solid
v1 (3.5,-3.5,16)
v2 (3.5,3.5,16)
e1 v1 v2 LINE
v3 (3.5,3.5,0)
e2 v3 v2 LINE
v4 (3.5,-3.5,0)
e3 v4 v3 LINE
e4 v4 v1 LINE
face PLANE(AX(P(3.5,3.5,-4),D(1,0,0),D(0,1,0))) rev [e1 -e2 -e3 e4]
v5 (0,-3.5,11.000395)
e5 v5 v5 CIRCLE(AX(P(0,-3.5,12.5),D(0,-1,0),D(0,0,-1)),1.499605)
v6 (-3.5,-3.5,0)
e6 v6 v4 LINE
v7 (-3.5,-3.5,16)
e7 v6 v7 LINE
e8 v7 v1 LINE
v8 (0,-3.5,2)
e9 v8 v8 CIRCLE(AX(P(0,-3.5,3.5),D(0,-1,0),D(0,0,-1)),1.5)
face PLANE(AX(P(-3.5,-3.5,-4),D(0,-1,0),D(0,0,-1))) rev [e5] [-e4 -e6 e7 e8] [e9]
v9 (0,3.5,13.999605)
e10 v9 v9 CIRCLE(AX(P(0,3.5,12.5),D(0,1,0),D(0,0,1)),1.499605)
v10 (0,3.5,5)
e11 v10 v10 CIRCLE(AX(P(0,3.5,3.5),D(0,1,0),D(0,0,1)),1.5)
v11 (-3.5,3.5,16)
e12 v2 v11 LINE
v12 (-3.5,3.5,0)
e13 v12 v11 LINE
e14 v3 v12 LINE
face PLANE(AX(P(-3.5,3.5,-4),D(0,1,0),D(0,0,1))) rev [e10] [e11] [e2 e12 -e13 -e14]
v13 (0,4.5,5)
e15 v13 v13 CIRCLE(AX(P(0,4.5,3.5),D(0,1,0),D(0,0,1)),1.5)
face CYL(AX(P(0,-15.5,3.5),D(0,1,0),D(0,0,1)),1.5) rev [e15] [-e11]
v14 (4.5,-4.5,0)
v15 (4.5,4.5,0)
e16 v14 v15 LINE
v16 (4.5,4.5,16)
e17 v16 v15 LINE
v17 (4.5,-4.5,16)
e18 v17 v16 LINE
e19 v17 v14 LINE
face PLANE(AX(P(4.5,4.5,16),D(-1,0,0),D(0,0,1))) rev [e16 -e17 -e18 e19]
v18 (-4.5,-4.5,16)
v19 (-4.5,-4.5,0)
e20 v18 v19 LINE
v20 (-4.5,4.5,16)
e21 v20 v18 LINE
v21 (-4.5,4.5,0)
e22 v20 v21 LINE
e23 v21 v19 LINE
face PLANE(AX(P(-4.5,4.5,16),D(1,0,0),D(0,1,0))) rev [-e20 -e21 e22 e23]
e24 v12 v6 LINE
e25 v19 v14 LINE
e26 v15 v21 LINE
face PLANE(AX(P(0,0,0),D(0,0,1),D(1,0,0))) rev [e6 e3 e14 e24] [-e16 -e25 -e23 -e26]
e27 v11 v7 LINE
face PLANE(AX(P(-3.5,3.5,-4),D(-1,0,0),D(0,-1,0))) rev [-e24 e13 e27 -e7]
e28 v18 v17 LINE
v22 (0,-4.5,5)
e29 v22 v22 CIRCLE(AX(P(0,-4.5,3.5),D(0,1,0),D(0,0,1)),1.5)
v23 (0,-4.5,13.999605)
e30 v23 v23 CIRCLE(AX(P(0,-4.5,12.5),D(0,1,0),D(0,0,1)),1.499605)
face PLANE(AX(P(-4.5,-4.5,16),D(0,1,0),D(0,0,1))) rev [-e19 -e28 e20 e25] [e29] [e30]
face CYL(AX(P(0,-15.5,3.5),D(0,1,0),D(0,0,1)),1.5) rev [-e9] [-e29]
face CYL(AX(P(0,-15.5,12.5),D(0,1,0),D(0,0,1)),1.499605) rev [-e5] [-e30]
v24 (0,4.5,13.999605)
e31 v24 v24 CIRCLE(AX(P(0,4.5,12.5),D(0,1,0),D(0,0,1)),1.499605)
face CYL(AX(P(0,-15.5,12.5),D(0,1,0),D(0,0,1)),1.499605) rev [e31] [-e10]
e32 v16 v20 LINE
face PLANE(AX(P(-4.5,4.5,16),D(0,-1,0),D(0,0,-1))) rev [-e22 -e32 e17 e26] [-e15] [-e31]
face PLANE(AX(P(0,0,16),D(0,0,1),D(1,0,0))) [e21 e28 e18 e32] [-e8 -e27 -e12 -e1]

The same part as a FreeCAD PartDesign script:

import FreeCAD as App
import Part
import Sketcher


def add_polygon(sketch, points):
    """Adds a closed chain of lines whose ends are joined by coincident constraints."""
    first, n = sketch.GeometryCount, len(points)
    for a, b in zip(points, points[1:] + points[:1]):
        sketch.addGeometry(Part.LineSegment(App.Vector(*a, 0), App.Vector(*b, 0)), False)
    for i in range(n):
        sketch.addConstraint(Sketcher.Constraint("Coincident", first + i, 2, first + (i + 1) % n, 1))

doc = App.newDocument("Part")
params = doc.addObject("Spreadsheet::Sheet", "Params")
for row, (alias, value) in enumerate([
    ("sketch1_width", "9 mm"),
    ("pad1_length", "16 mm"),
    ("sketch2_width", "7 mm"),
    ("pocket1_length", "20 mm"),
    ("sketch3_diameter", "3 mm"),
    ("pocket2_length", "20 mm"),
], start=1):
    params.set(f"A{row}", alias)
    params.set(f"B{row}", "=" + value)
    params.setAlias(f"B{row}", alias)

body = doc.addObject("PartDesign::Body", "Body")

# Sketch on XY plane
sketch1 = doc.addObject("Sketcher::SketchObject", "Sketch")
body.addObject(sketch1)
sketch1.AttachmentSupport = (doc.XY_Plane, [""])
sketch1.MapMode = "FlatFace"
add_polygon(sketch1, [(-4, 4), (-4, -4), (4, -4), (4, 4)])  # lines 0-3
sketch1.addConstraint(Sketcher.Constraint("Vertical", 0))
sketch1.addConstraint(Sketcher.Constraint("Horizontal", 1))
sketch1.addConstraint(Sketcher.Constraint("Vertical", 2))
sketch1.addConstraint(Sketcher.Constraint("Horizontal", 3))
sketch1.addConstraint(Sketcher.Constraint("Symmetric", 0, 2, 2, 2, -1, 1))
sketch1.addConstraint(Sketcher.Constraint("Equal", 3, 0))
sketch1.addConstraint(Sketcher.Constraint("DistanceX", 1, 1, 1, 2, 9.0))
sketch1.setExpression("Constraints[10]", "Params.sketch1_width")
pad1 = doc.addObject("PartDesign::Pad", "Pad")
body.addObject(pad1)
pad1.Profile = sketch1
pad1.setExpression("Length", "Params.pad1_length")

# Sketch on XY plane
sketch2 = doc.addObject("Sketcher::SketchObject", "Sketch001")
body.addObject(sketch2)
sketch2.AttachmentSupport = (doc.XY_Plane, [""])
sketch2.MapMode = "FlatFace"
sketch2.AttachmentOffset = App.Placement(App.Vector(0, 0, 16), App.Rotation())
add_polygon(sketch2, [(-4, 4), (-4, -4), (4, -4), (4, 4)])  # lines 0-3
sketch2.addConstraint(Sketcher.Constraint("Vertical", 0))
sketch2.addConstraint(Sketcher.Constraint("Horizontal", 1))
sketch2.addConstraint(Sketcher.Constraint("Vertical", 2))
sketch2.addConstraint(Sketcher.Constraint("Horizontal", 3))
sketch2.addConstraint(Sketcher.Constraint("Symmetric", 0, 2, 2, 2, -1, 1))
sketch2.addConstraint(Sketcher.Constraint("Equal", 3, 0))
sketch2.addConstraint(Sketcher.Constraint("DistanceX", 1, 1, 1, 2, 7.0))
sketch2.setExpression("Constraints[10]", "Params.sketch2_width")
pocket1 = doc.addObject("PartDesign::Pocket", "Pocket")
body.addObject(pocket1)
pocket1.Profile = sketch2
pocket1.setExpression("Length", "Params.pocket1_length")

# Sketch on XZ plane
sketch3 = doc.addObject("Sketcher::SketchObject", "Sketch002")
body.addObject(sketch3)
sketch3.AttachmentSupport = (doc.XZ_Plane, [""])
sketch3.MapMode = "FlatFace"
sketch3.AttachmentOffset = App.Placement(App.Vector(0, 0, -4.5), App.Rotation())
sketch3.addGeometry(Part.Circle(App.Vector(0, 3.5, 0), App.Vector(0, 0, 1), 1.5), False)
sketch3.addGeometry(Part.Circle(App.Vector(0, 12.5, 0), App.Vector(0, 0, 1), 1.5), False)
sketch3.addConstraint(Sketcher.Constraint("PointOnObject", 0, 3, -2))
sketch3.addConstraint(Sketcher.Constraint("PointOnObject", 1, 3, -2))
sketch3.addConstraint(Sketcher.Constraint("Diameter", 0, 3.0))
sketch3.addConstraint(Sketcher.Constraint("DistanceY", 0, 3, 1, 3, 9.0))
sketch3.addConstraint(Sketcher.Constraint("DistanceY", -1, 1, 0, 3, 3.5))
sketch3.addConstraint(Sketcher.Constraint("Diameter", 1, 2.99921))
sketch3.setExpression("Constraints[2]", "Params.sketch3_diameter")
pocket2 = doc.addObject("PartDesign::Pocket", "Pocket001")
body.addObject(pocket2)
pocket2.Profile = sketch3
pocket2.setExpression("Length", "Params.pocket2_length")
pocket2.Reversed = True

doc.recompute()
